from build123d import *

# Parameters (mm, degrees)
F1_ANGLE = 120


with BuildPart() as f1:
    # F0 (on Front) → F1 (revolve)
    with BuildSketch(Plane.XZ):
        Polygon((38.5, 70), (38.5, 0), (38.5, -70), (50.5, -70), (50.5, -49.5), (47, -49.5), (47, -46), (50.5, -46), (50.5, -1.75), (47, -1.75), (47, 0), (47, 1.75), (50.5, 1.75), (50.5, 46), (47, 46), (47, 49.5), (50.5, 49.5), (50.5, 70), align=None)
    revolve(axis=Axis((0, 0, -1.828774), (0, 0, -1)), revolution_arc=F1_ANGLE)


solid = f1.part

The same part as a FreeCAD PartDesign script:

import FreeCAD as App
import Part
import Sketcher
from FreeCAD import Vector

doc = App.newDocument("Part")
body = doc.addObject("PartDesign::Body", "Body")

# Sketch on XZ plane
sketch1 = doc.addObject("Sketcher::SketchObject", "Sketch")
body.addObject(sketch1)
sketch1.AttachmentSupport = (doc.XZ_Plane, [""])
sketch1.MapMode = "FlatFace"
sketch1.addGeometry(Part.LineSegment(Vector(38.5, 70, 0), Vector(38.5, -70, 0)), False)
sketch1.addGeometry(Part.LineSegment(Vector(38.5, -70, 0), Vector(50.5, -70, 0)), False)
sketch1.addGeometry(Part.LineSegment(Vector(50.5, -70, 0), Vector(50.5, -49.5, 0)), False)
sketch1.addGeometry(Part.LineSegment(Vector(50.5, -49.5, 0), Vector(47, -49.5, 0)), False)
sketch1.addGeometry(Part.LineSegment(Vector(47, -49.5, 0), Vector(47, -46, 0)), False)
sketch1.addGeometry(Part.LineSegment(Vector(47, -46, 0), Vector(50.5, -46, 0)), False)
sketch1.addGeometry(Part.LineSegment(Vector(50.5, -46, 0), Vector(50.5, -1.8, 0)), False)
sketch1.addGeometry(Part.LineSegment(Vector(50.5, -1.8, 0), Vector(47, -1.8, 0)), False)
sketch1.addGeometry(Part.LineSegment(Vector(47, -1.8, 0), Vector(47, 1.8, 0)), False)
sketch1.addGeometry(Part.LineSegment(Vector(47, 1.8, 0), Vector(50.5, 1.8, 0)), False)
sketch1.addGeometry(Part.LineSegment(Vector(50.5, 1.8, 0), Vector(50.5, 46, 0)), False)
sketch1.addGeometry(Part.LineSegment(Vector(50.5, 46, 0), Vector(47, 46, 0)), False)
sketch1.addGeometry(Part.LineSegment(Vector(47, 46, 0), Vector(47, 49.5, 0)), False)
sketch1.addGeometry(Part.LineSegment(Vector(47, 49.5, 0), Vector(50.5, 49.5, 0)), False)
sketch1.addGeometry(Part.LineSegment(Vector(50.5, 49.5, 0), Vector(50.5, 70, 0)), False)
sketch1.addGeometry(Part.LineSegment(Vector(50.5, 70, 0), Vector(38.5, 70, 0)), False)
sketch1.addConstraint(Sketcher.Constraint("Coincident", 0, 2, 1, 1))
sketch1.addConstraint(Sketcher.Constraint("Coincident", 1, 2, 2, 1))
sketch1.addConstraint(Sketcher.Constraint("Coincident", 2, 2, 3, 1))
sketch1.addConstraint(Sketcher.Constraint("Coincident", 3, 2, 4, 1))
sketch1.addConstraint(Sketcher.Constraint("Coincident", 4, 2, 5, 1))
sketch1.addConstraint(Sketcher.Constraint("Coincident", 5, 2, 6, 1))
sketch1.addConstraint(Sketcher.Constraint("Coincident", 6, 2, 7, 1))
sketch1.addConstraint(Sketcher.Constraint("Coincident", 7, 2, 8, 1))
sketch1.addConstraint(Sketcher.Constraint("Coincident", 8, 2, 9, 1))
sketch1.addConstraint(Sketcher.Constraint("Coincident", 9, 2, 10, 1))
sketch1.addConstraint(Sketcher.Constraint("Coincident", 10, 2, 11, 1))
sketch1.addConstraint(Sketcher.Constraint("Coincident", 11, 2, 12, 1))
sketch1.addConstraint(Sketcher.Constraint("Coincident", 12, 2, 13, 1))
sketch1.addConstraint(Sketcher.Constraint("Coincident", 13, 2, 14, 1))
sketch1.addConstraint(Sketcher.Constraint("Coincident", 14, 2, 15, 1))
sketch1.addConstraint(Sketcher.Constraint("Coincident", 15, 2, 0, 1))
sketch1.addConstraint(Sketcher.Constraint("Vertical", 0))
sketch1.addConstraint(Sketcher.Constraint("Horizontal", 1))
sketch1.addConstraint(Sketcher.Constraint("Vertical", 2))
sketch1.addConstraint(Sketcher.Constraint("Horizontal", 3))
sketch1.addConstraint(Sketcher.Constraint("Vertical", 4))
sketch1.addConstraint(Sketcher.Constraint("Horizontal", 5))
sketch1.addConstraint(Sketcher.Constraint("Vertical", 6))
sketch1.addConstraint(Sketcher.Constraint("Horizontal", 7))
sketch1.addConstraint(Sketcher.Constraint("Vertical", 8))
sketch1.addConstraint(Sketcher.Constraint("Horizontal", 9))
sketch1.addConstraint(Sketcher.Constraint("Vertical", 10))
sketch1.addConstraint(Sketcher.Constraint("Horizontal", 11))
sketch1.addConstraint(Sketcher.Constraint("Vertical", 12))
sketch1.addConstraint(Sketcher.Constraint("Horizontal", 13))
sketch1.addConstraint(Sketcher.Constraint("Vertical", 14))
sketch1.addConstraint(Sketcher.Constraint("Horizontal", 15))
sketch1.addConstraint(Sketcher.Constraint("Symmetric", 6, 2, 9, 2, -1))
sketch1.addConstraint(Sketcher.Constraint("Symmetric", 4, 2, 11, 2, -1))
sketch1.addConstraint(Sketcher.Constraint("Symmetric", 2, 2, 13, 2, -1))
sketch1.addConstraint(Sketcher.Constraint("Vertical", 2, 2, 5, 2))
sketch1.addConstraint(Sketcher.Constraint("Vertical", 4, 2, 7, 2))
sketch1.addConstraint(Sketcher.Constraint("Equal", 13, 4))
sketch1.addConstraint(Sketcher.Constraint("Equal", 4, 8))
sketch1.addConstraint(Sketcher.Constraint("Equal", 2, 14))
sketch1.addConstraint(Sketcher.Constraint("DistanceX", 1, 1, 1, 2, 12.0))
sketch1.addConstraint(Sketcher.Constraint("DistanceY", 0, 2, 0, 1, 140.0))
sketch1.addConstraint(Sketcher.Constraint("DistanceX", 3, 2, 3, 1, 3.5))
sketch1.addConstraint(Sketcher.Constraint("DistanceY", 2, 1, 2, 2, 20.5))
sketch1.addConstraint(Sketcher.Constraint("DistanceX", -1, 1, 3, 2, 47.0))
revolution = doc.addObject("PartDesign::Revolution", "Revolution")
body.addObject(revolution)
revolution.Profile = sketch1
revolution.ReferenceAxis = (sketch1, ["V_Axis"])
revolution.Angle = 120
revolution.Reversed = True

doc.recompute()
